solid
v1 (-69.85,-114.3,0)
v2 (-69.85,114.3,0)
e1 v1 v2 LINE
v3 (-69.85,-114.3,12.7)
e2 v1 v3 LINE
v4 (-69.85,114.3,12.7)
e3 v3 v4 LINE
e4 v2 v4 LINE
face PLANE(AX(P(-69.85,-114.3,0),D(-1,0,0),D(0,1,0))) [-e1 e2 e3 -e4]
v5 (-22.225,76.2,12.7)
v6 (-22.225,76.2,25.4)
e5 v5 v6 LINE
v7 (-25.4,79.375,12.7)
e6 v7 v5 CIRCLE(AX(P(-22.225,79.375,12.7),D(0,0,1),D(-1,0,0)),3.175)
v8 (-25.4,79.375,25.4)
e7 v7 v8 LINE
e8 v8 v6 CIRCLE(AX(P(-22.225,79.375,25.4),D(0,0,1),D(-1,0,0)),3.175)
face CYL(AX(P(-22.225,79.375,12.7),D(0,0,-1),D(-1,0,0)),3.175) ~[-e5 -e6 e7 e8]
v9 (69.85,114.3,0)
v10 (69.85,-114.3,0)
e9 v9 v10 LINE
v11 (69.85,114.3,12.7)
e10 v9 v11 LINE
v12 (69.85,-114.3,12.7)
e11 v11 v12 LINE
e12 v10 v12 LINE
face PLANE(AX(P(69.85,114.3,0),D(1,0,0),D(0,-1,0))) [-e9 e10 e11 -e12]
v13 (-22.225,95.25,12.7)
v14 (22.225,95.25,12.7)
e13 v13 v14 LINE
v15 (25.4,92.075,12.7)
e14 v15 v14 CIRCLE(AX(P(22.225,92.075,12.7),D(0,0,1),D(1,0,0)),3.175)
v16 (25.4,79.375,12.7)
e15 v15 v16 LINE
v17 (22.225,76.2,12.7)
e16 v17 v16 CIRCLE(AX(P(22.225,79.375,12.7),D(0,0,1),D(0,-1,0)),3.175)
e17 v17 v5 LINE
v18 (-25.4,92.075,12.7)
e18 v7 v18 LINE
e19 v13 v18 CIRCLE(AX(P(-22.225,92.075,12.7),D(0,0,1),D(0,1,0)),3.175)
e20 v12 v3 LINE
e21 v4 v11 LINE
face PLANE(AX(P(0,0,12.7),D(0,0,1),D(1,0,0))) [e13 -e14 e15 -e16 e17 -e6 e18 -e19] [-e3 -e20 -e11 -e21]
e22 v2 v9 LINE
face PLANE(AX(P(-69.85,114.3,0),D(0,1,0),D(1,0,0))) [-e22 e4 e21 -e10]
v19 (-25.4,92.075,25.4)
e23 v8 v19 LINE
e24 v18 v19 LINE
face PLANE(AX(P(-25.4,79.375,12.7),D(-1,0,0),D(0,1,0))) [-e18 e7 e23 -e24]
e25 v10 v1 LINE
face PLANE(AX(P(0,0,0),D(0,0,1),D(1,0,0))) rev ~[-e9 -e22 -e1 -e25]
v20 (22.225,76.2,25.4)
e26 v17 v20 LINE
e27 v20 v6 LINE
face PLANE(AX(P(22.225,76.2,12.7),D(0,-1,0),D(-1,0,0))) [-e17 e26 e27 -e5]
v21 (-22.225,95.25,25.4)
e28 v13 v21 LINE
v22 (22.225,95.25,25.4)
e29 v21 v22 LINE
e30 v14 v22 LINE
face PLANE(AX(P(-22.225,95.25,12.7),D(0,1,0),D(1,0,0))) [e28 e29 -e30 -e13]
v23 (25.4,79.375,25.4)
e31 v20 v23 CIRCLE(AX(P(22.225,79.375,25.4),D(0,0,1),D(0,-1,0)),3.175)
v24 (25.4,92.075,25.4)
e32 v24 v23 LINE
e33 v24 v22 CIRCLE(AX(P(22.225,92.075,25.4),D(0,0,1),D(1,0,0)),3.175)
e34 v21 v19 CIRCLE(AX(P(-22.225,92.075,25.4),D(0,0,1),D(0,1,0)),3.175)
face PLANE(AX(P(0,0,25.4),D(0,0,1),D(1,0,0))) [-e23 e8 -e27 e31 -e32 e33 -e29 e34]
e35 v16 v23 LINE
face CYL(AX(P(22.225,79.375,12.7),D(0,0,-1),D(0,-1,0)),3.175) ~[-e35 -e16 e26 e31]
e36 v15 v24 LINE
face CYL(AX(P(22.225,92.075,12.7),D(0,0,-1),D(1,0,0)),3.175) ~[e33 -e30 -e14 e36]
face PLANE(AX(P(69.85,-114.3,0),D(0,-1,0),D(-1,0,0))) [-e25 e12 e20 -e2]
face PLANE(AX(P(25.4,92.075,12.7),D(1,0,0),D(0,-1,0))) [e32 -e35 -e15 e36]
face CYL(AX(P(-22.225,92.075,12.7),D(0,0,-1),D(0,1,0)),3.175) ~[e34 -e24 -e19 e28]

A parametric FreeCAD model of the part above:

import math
import FreeCAD as App
import Part
import Sketcher
Q = App.Units.Quantity


def add_polygon(sketch, points):
    """Adds a closed chain of lines whose ends are joined by coincident constraints."""
    first, n = sketch.GeometryCount, len(points)
    for a, b in zip(points, points[1:] + points[:1]):
        sketch.addGeometry(Part.LineSegment(App.Vector(*a, 0), App.Vector(*b, 0)), False)
    for i in range(n):
        sketch.addConstraint(Sketcher.Constraint("Coincident", first + i, 2, first + (i + 1) % n, 1))

doc = App.newDocument("Part")
body = doc.addObject("PartDesign::Body", "Body")

# Sketch on XY plane
sketch1 = doc.addObject("Sketcher::SketchObject", "Sketch")
body.addObject(sketch1)
sketch1.AttachmentSupport = (doc.XY_Plane, [""])
sketch1.MapMode = "FlatFace"
add_polygon(sketch1, [(69.85, 114.3), (-69.85, 114.3), (-69.85, -114.3), (69.85, -114.3)])  # lines 0-3
sketch1.addConstraint([
    Sketcher.Constraint("Horizontal", 0),
    Sketcher.Constraint("Vertical", 1),
    Sketcher.Constraint("Horizontal", 2),
    Sketcher.Constraint("Vertical", 3),
    Sketcher.Constraint("Symmetric", 0, 2, 2, 2, -1, 1),
    Sketcher.Constraint("DistanceY", 1, 2, 1, 1, Q("9 in")),
    Sketcher.Constraint("DistanceX", 0, 2, 0, 1, Q("5.5 in")),
])
pad1 = doc.addObject("PartDesign::Pad", "Pad")
body.addObject(pad1)
pad1.Profile = sketch1
pad1.Length = Q("0.5 in")

# Sketch on XY plane
sketch2 = doc.addObject("Sketcher::SketchObject", "Sketch001")
body.addObject(sketch2)
sketch2.AttachmentSupport = (doc.XY_Plane, [""])
sketch2.MapMode = "FlatFace"
sketch2.AttachmentOffset = App.Placement(App.Vector(0, 0, 0.5 * 25.4), App.Rotation())
sketch2.addGeometry([
    Part.LineSegment(App.Vector(22.225, 95.25, 0), App.Vector(-22.225, 95.25, 0)),  # 0
    Part.ArcOfCircle(Part.Circle(App.Vector(-22.225, 92.075, 0), App.Vector(0, 0, 1), 3.175), math.radians(90), math.radians(180)),  # 1
    Part.LineSegment(App.Vector(-25.4, 92.075, 0), App.Vector(-25.4, 79.375, 0)),  # 2
    Part.ArcOfCircle(Part.Circle(App.Vector(-22.225, 79.375, 0), App.Vector(0, 0, 1), 3.175), math.radians(180), math.radians(270)),  # 3
    Part.LineSegment(App.Vector(-22.225, 76.2, 0), App.Vector(22.225, 76.2, 0)),  # 4
    Part.ArcOfCircle(Part.Circle(App.Vector(22.225, 79.375, 0), App.Vector(0, 0, 1), 3.175), math.radians(-90), math.radians(0)),  # 5
    Part.LineSegment(App.Vector(25.4, 79.375, 0), App.Vector(25.4, 92.075, 0)),  # 6
    Part.ArcOfCircle(Part.Circle(App.Vector(22.225, 92.075, 0), App.Vector(0, 0, 1), 3.175), math.radians(0), math.radians(90)),  # 7
], False)
sketch2.addConstraint([
    Sketcher.Constraint("Tangent", 0, 2, 1, 1),
    Sketcher.Constraint("Tangent", 1, 2, 2, 1),
    Sketcher.Constraint("Tangent", 2, 2, 3, 1),
    Sketcher.Constraint("Tangent", 3, 2, 4, 1),
    Sketcher.Constraint("Tangent", 4, 2, 5, 1),
    Sketcher.Constraint("Tangent", 5, 2, 6, 1),
    Sketcher.Constraint("Tangent", 6, 2, 7, 1),
    Sketcher.Constraint("Tangent", 7, 2, 0, 1),
    Sketcher.Constraint("Horizontal", 0),
    Sketcher.Constraint("Vertical", 2),
    Sketcher.Constraint("Horizontal", 4),
    Sketcher.Constraint("Vertical", 6),
    Sketcher.Constraint("Equal", 1, 3),
    Sketcher.Constraint("Equal", 3, 5),
    Sketcher.Constraint("Equal", 5, 7),
    Sketcher.Constraint("DistanceX", 1, 2, -1, 1, Q("1 in")),
    Sketcher.Constraint("DistanceX", -1, 1, 5, 2, Q("1 in")),
    Sketcher.Constraint("Radius", 1, Q("0.125 in")),
    Sketcher.Constraint("DistanceY", -1, 1, 0, 2, Q("3.75 in")),
    Sketcher.Constraint("DistanceY", 3, 2, 0, 2, Q("0.75 in")),
])
pad2 = doc.addObject("PartDesign::Pad", "Pad001")
body.addObject(pad2)
pad2.Profile = sketch2
pad2.Length = Q("0.5 in")

doc.recompute()
